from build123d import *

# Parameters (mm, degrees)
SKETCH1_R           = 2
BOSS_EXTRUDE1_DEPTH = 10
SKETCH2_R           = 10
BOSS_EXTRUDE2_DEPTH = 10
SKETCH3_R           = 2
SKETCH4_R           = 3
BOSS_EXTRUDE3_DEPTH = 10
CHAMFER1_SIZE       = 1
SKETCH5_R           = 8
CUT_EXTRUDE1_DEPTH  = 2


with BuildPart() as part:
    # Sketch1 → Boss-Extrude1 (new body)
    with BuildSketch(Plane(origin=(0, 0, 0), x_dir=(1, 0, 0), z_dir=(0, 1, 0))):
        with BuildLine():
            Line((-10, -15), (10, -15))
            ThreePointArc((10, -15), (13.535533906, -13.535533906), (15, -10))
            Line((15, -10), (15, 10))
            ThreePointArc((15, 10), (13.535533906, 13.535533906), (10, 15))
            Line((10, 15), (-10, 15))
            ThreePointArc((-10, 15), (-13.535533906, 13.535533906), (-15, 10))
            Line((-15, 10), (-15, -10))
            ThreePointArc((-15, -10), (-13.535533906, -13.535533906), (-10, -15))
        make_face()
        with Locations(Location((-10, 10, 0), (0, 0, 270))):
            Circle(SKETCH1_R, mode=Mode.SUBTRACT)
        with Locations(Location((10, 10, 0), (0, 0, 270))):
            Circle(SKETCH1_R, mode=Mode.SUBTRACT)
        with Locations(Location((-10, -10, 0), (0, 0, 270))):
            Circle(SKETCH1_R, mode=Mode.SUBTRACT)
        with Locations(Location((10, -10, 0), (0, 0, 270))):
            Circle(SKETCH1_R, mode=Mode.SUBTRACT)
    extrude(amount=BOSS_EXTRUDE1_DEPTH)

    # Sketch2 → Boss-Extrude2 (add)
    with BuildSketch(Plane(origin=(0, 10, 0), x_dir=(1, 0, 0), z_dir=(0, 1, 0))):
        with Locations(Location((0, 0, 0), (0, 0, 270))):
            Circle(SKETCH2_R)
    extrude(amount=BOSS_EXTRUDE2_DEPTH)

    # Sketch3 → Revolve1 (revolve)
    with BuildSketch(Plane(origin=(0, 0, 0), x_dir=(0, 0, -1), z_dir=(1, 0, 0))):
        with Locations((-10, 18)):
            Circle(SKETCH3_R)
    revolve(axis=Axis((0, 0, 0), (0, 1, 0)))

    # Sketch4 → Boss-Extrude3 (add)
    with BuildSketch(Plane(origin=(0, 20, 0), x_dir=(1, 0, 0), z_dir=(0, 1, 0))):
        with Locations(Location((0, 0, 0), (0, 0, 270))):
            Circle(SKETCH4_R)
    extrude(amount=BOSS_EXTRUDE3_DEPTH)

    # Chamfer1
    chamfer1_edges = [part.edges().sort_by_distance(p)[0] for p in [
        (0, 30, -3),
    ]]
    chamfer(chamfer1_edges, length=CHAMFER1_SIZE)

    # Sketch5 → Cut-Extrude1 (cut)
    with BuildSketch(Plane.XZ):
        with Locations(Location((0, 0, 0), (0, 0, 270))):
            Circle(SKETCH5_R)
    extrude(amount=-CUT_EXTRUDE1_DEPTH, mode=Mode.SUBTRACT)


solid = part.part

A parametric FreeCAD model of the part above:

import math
import FreeCAD as App
import Part
import Sketcher


def edges_at(feature, points):
    """Names of the edges that pass closest to the given points."""
    edges = feature.Shape.Edges
    near = lambda p: min(range(len(edges)), key=lambda i: edges[i].distToShape(Part.Vertex(*p))[0])
    return sorted({f"Edge{near(p) + 1}" for p in points})

doc = App.newDocument("Part")
body = doc.addObject("PartDesign::Body", "Body")

# Sketch on XZ plane
sketch1 = body.newObject("Sketcher::SketchObject", "Sketch")
sketch1.AttachmentSupport = (doc.getObject("XZ_Plane"), [""])
sketch1.MapMode = "FlatFace"
sketch1.addGeometry(Part.LineSegment(App.Vector(-10, 15, 0), App.Vector(10, 15, 0)), False)
sketch1.addGeometry(Part.ArcOfCircle(Part.Circle(App.Vector(10, 10, 0), App.Vector(0, 0, 1), 5), math.radians(0), math.radians(90)), False)
sketch1.addGeometry(Part.LineSegment(App.Vector(15, 10, 0), App.Vector(15, -10, 0)), False)
sketch1.addGeometry(Part.ArcOfCircle(Part.Circle(App.Vector(10, -10, 0), App.Vector(0, 0, 1), 5), math.radians(-90), math.radians(0)), False)
sketch1.addGeometry(Part.LineSegment(App.Vector(10, -15, 0), App.Vector(-10, -15, 0)), False)
sketch1.addGeometry(Part.ArcOfCircle(Part.Circle(App.Vector(-10, -10, 0), App.Vector(0, 0, 1), 5), math.radians(180), math.radians(270)), False)
sketch1.addGeometry(Part.LineSegment(App.Vector(-15, -10, 0), App.Vector(-15, 10, 0)), False)
sketch1.addGeometry(Part.ArcOfCircle(Part.Circle(App.Vector(-10, 10, 0), App.Vector(0, 0, 1), 5), math.radians(90), math.radians(180)), False)
sketch1.addGeometry(Part.Circle(App.Vector(-10, 10, 0), App.Vector(0, 0, 1), 2), False)
sketch1.addGeometry(Part.Circle(App.Vector(10, 10, 0), App.Vector(0, 0, 1), 2), False)
sketch1.addGeometry(Part.Circle(App.Vector(-10, -10, 0), App.Vector(0, 0, 1), 2), False)
sketch1.addGeometry(Part.Circle(App.Vector(10, -10, 0), App.Vector(0, 0, 1), 2), False)
sketch1.addConstraint(Sketcher.Constraint("Tangent", 0, 2, 1, 2))
sketch1.addConstraint(Sketcher.Constraint("Tangent", 1, 1, 2, 1))
sketch1.addConstraint(Sketcher.Constraint("Tangent", 2, 2, 3, 2))
sketch1.addConstraint(Sketcher.Constraint("Tangent", 3, 1, 4, 1))
sketch1.addConstraint(Sketcher.Constraint("Tangent", 4, 2, 5, 2))
sketch1.addConstraint(Sketcher.Constraint("Tangent", 5, 1, 6, 1))
sketch1.addConstraint(Sketcher.Constraint("Tangent", 6, 2, 7, 2))
sketch1.addConstraint(Sketcher.Constraint("Tangent", 7, 1, 0, 1))
sketch1.addConstraint(Sketcher.Constraint("Horizontal", 0))
sketch1.addConstraint(Sketcher.Constraint("Vertical", 2))
sketch1.addConstraint(Sketcher.Constraint("Horizontal", 4))
sketch1.addConstraint(Sketcher.Constraint("Vertical", 6))
sketch1.addConstraint(Sketcher.Constraint("Coincident", 8, 3, 7, 3))
sketch1.addConstraint(Sketcher.Constraint("Coincident", 9, 3, 1, 3))
sketch1.addConstraint(Sketcher.Constraint("Coincident", 10, 3, 5, 3))
sketch1.addConstraint(Sketcher.Constraint("Coincident", 11, 3, 3, 3))
sketch1.addConstraint(Sketcher.Constraint("Equal", 1, 3))
sketch1.addConstraint(Sketcher.Constraint("Equal", 3, 5))
sketch1.addConstraint(Sketcher.Constraint("Equal", 5, 7))
sketch1.addConstraint(Sketcher.Constraint("Equal", 8, 9))
sketch1.addConstraint(Sketcher.Constraint("Equal", 9, 10))
sketch1.addConstraint(Sketcher.Constraint("Equal", 10, 11))
sketch1.addConstraint(Sketcher.Constraint("Symmetric", 1, 3, 5, 3, -1, 1))
sketch1.addConstraint(Sketcher.Constraint("Equal", 4, 2))
sketch1.addConstraint(Sketcher.Constraint("Diameter", 8, 4.0))
sketch1.addConstraint(Sketcher.Constraint("Radius", 1, 5.0))
sketch1.addConstraint(Sketcher.Constraint("DistanceX", 0, 1, 0, 2, 20.0))
pad1 = body.newObject("PartDesign::Pad", "Pad")
pad1.Profile = sketch1
pad1.Length = 10
pad1.Reversed = True

# Sketch on XZ plane
sketch2 = body.newObject("Sketcher::SketchObject", "Sketch001")
sketch2.AttachmentSupport = (doc.getObject("XZ_Plane"), [""])
sketch2.MapMode = "FlatFace"
sketch2.AttachmentOffset = App.Placement(App.Vector(0, 0, -10), App.Rotation())
sketch2.addGeometry(Part.Circle(App.Vector(0, 0, 0), App.Vector(0, 0, 1), 10), False)
sketch2.addConstraint(Sketcher.Constraint("Coincident", 0, 3, -1, 1))
sketch2.addConstraint(Sketcher.Constraint("Diameter", 0, 20.0))
pad2 = body.newObject("PartDesign::Pad", "Pad001")
pad2.Profile = sketch2
pad2.Length = 10
pad2.Reversed = True

# Sketch on YZ plane
sketch3 = body.newObject("Sketcher::SketchObject", "Sketch002")
sketch3.AttachmentSupport = (doc.getObject("YZ_Plane"), [""])
sketch3.MapMode = "FlatFace"
sketch3.addGeometry(Part.Circle(App.Vector(18, 10, 0), App.Vector(0, 0, 1), 2), False)
sketch3.addConstraint(Sketcher.Constraint("Diameter", 0, 4.0))
sketch3.addConstraint(Sketcher.Constraint("DistanceX", -1, 1, 0, 3, 18.0))
sketch3.addConstraint(Sketcher.Constraint("DistanceY", -1, 1, 0, 3, 10.0))
revolution = body.newObject("PartDesign::Revolution", "Revolution")
revolution.Profile = sketch3
revolution.ReferenceAxis = (sketch3, ["H_Axis"])
revolution.Angle = 360

# Sketch on XZ plane
sketch4 = body.newObject("Sketcher::SketchObject", "Sketch003")
sketch4.AttachmentSupport = (doc.getObject("XZ_Plane"), [""])
sketch4.MapMode = "FlatFace"
sketch4.AttachmentOffset = App.Placement(App.Vector(0, 0, -20), App.Rotation())
sketch4.addGeometry(Part.Circle(App.Vector(0, 0, 0), App.Vector(0, 0, 1), 3), False)
sketch4.addConstraint(Sketcher.Constraint("Coincident", 0, 3, -1, 1))
sketch4.addConstraint(Sketcher.Constraint("Diameter", 0, 6.0))
pad3 = body.newObject("PartDesign::Pad", "Pad002")
pad3.Profile = sketch4
pad3.Length = 10
pad3.Reversed = True
doc.recompute()

chamfer = body.newObject("PartDesign::Chamfer", "Chamfer")
chamfer.Base = (pad3, edges_at(pad3, [(0, 30, -3)]))
chamfer.Size = 1

# Sketch on XZ plane
sketch5 = body.newObject("Sketcher::SketchObject", "Sketch004")
sketch5.AttachmentSupport = (doc.getObject("XZ_Plane"), [""])
sketch5.MapMode = "FlatFace"
sketch5.addGeometry(Part.Circle(App.Vector(0, 0, 0), App.Vector(0, 0, 1), 8), False)
sketch5.addConstraint(Sketcher.Constraint("Coincident", 0, 3, -1, 1))
sketch5.addConstraint(Sketcher.Constraint("Diameter", 0, 16.0))
pocket1 = body.newObject("PartDesign::Pocket", "Pocket")
pocket1.Profile = sketch5
pocket1.Length = 2

doc.recompute()
